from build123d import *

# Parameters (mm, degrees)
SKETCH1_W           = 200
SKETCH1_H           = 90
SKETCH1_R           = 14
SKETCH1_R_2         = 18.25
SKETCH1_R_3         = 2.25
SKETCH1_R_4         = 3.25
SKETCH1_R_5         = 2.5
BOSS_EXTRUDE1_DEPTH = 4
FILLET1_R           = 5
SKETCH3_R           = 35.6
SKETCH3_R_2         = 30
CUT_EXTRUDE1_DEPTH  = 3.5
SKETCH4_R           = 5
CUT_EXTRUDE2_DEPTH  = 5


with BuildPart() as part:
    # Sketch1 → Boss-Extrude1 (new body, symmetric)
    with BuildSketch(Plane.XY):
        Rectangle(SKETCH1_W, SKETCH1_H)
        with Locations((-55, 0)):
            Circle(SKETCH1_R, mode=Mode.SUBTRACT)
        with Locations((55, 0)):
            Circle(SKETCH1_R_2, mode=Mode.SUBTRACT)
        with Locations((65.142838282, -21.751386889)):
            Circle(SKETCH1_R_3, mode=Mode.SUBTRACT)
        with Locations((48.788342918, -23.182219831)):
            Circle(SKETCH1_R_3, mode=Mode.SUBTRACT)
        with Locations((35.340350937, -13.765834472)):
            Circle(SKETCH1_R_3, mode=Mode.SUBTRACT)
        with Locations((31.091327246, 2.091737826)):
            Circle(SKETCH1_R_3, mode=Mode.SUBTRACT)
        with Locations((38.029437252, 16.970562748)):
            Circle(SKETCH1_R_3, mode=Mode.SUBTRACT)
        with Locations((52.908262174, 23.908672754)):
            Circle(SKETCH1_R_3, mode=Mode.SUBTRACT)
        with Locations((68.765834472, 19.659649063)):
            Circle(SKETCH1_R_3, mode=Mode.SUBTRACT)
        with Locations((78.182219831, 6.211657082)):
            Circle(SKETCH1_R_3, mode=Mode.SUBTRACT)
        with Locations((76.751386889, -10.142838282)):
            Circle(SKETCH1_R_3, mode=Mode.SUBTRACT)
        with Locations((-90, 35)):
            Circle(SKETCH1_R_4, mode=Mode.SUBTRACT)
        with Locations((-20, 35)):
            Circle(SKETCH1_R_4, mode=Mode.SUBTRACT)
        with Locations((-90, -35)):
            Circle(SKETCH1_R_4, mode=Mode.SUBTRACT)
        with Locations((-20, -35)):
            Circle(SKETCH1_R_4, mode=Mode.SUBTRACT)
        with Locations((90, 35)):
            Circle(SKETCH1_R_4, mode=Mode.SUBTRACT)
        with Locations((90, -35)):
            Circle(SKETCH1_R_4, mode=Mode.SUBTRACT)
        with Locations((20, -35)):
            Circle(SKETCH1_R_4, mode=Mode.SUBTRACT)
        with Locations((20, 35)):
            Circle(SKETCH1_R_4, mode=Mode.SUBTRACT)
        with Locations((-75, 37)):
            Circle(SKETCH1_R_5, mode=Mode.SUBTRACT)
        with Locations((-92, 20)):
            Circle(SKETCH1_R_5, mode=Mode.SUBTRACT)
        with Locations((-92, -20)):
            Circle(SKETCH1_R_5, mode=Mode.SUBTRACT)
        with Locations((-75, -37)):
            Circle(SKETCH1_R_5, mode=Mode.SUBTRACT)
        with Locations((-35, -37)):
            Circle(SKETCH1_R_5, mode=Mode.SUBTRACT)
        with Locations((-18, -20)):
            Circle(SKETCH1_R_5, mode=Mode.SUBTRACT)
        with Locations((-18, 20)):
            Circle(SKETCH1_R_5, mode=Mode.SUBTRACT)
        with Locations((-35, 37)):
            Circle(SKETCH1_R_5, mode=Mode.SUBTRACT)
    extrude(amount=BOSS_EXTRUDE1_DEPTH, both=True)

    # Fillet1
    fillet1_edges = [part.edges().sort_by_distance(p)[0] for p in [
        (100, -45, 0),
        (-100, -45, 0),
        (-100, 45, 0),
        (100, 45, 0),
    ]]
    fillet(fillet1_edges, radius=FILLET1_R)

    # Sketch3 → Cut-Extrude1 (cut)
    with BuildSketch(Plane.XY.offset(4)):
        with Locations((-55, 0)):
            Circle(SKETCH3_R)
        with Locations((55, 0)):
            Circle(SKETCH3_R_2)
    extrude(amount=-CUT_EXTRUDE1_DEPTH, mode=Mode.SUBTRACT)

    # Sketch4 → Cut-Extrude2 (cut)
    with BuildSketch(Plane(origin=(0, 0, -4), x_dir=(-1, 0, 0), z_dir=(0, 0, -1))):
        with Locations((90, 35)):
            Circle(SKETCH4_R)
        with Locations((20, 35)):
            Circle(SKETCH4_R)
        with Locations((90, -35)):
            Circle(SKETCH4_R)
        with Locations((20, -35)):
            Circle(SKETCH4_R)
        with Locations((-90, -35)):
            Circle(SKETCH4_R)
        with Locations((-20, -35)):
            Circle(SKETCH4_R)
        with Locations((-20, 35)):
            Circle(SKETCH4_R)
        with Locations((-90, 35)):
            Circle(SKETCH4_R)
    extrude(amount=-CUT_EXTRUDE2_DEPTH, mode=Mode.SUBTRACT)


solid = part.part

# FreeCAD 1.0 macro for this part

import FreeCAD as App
import Part
import Sketcher
from FreeCAD import Vector


def edges_at(feature, points):
    """Names of the edges that pass closest to the given points."""
    edges = feature.Shape.Edges
    near = lambda p: min(range(len(edges)), key=lambda i: edges[i].distToShape(Part.Vertex(*p))[0])
    return sorted({f"Edge{near(p) + 1}" for p in points})


def add_polygon(sketch, points):
    """Adds a closed chain of lines whose ends are joined by coincident constraints."""
    first, n = sketch.GeometryCount, len(points)
    for a, b in zip(points, points[1:] + points[:1]):
        sketch.addGeometry(Part.LineSegment(App.Vector(*a, 0), App.Vector(*b, 0)), False)
    for i in range(n):
        sketch.addConstraint(Sketcher.Constraint("Coincident", first + i, 2, first + (i + 1) % n, 1))

doc = App.newDocument("Part")
body = doc.addObject("PartDesign::Body", "Body")

sketch1 = body.newObject("Sketcher::SketchObject", "Sketch")
sketch1.AttachmentSupport = (doc.getObject("XY_Plane"), [""])
sketch1.MapMode = "FlatFace"
add_polygon(sketch1, [(-100, 45), (-100, -45), (100, -45), (100, 45)])
sketch1.addGeometry(Part.Circle(Vector(-90, -35, 0), Vector(0, 0, 1), 3.2), False)
sketch1.addGeometry(Part.Circle(Vector(-75, -37, 0), Vector(0, 0, 1), 2.5), False)
sketch1.addGeometry(Part.Circle(Vector(-92, -20, 0), Vector(0, 0, 1), 2.5), False)
sketch1.addGeometry(Part.Circle(Vector(-35, -37, 0), Vector(0, 0, 1), 2.5), False)
sketch1.addGeometry(Part.Circle(Vector(-20, -35, 0), Vector(0, 0, 1), 3.2), False)
sketch1.addGeometry(Part.Circle(Vector(-18, -20, 0), Vector(0, 0, 1), 2.5), False)
sketch1.addGeometry(Part.Circle(Vector(20, -35, 0), Vector(0, 0, 1), 3.2), False)
sketch1.addGeometry(Part.Circle(Vector(90, -35, 0), Vector(0, 0, 1), 3.2), False)
sketch1.addGeometry(Part.Circle(Vector(48.8, -23.2, 0), Vector(0, 0, 1), 2.2), False)
sketch1.addGeometry(Part.Circle(Vector(65.1, -21.8, 0), Vector(0, 0, 1), 2.2), False)
sketch1.addGeometry(Part.Circle(Vector(35.3, -13.8, 0), Vector(0, 0, 1), 2.2), False)
sketch1.addGeometry(Part.Circle(Vector(76.8, -10.1, 0), Vector(0, 0, 1), 2.2), False)
sketch1.addGeometry(Part.Circle(Vector(-55, 0, 0), Vector(0, 0, 1), 14), False)
sketch1.addGeometry(Part.Circle(Vector(-92, 20, 0), Vector(0, 0, 1), 2.5), False)
sketch1.addGeometry(Part.Circle(Vector(-90, 35, 0), Vector(0, 0, 1), 3.2), False)
sketch1.addGeometry(Part.Circle(Vector(-75, 37, 0), Vector(0, 0, 1), 2.5), False)
sketch1.addGeometry(Part.Circle(Vector(-18, 20, 0), Vector(0, 0, 1), 2.5), False)
sketch1.addGeometry(Part.Circle(Vector(-35, 37, 0), Vector(0, 0, 1), 2.5), False)
sketch1.addGeometry(Part.Circle(Vector(-20, 35, 0), Vector(0, 0, 1), 3.2), False)
sketch1.addGeometry(Part.Circle(Vector(31.1, 2.1, 0), Vector(0, 0, 1), 2.2), False)
sketch1.addGeometry(Part.Circle(Vector(38, 17, 0), Vector(0, 0, 1), 2.2), False)
sketch1.addGeometry(Part.Circle(Vector(55, 0, 0), Vector(0, 0, 1), 18.2), False)
sketch1.addGeometry(Part.Circle(Vector(78.2, 6.2, 0), Vector(0, 0, 1), 2.2), False)
sketch1.addGeometry(Part.Circle(Vector(68.8, 19.7, 0), Vector(0, 0, 1), 2.2), False)
sketch1.addGeometry(Part.Circle(Vector(20, 35, 0), Vector(0, 0, 1), 3.2), False)
sketch1.addGeometry(Part.Circle(Vector(52.9, 23.9, 0), Vector(0, 0, 1), 2.2), False)
sketch1.addGeometry(Part.Circle(Vector(90, 35, 0), Vector(0, 0, 1), 3.2), False)
sketch1.addConstraint(Sketcher.Constraint("Vertical", 0))
sketch1.addConstraint(Sketcher.Constraint("Horizontal", 1))
sketch1.addConstraint(Sketcher.Constraint("Vertical", 2))
sketch1.addConstraint(Sketcher.Constraint("Horizontal", 3))
sketch1.addConstraint(Sketcher.Constraint("Equal", 5, 6))
sketch1.addConstraint(Sketcher.Constraint("Equal", 6, 7))
sketch1.addConstraint(Sketcher.Constraint("Equal", 4, 8))
sketch1.addConstraint(Sketcher.Constraint("Equal", 7, 9))
sketch1.addConstraint(Sketcher.Constraint("Equal", 8, 10))
sketch1.addConstraint(Sketcher.Constraint("Equal", 10, 11))
sketch1.addConstraint(Sketcher.Constraint("Equal", 12, 13))
sketch1.addConstraint(Sketcher.Constraint("Equal", 13, 14))
sketch1.addConstraint(Sketcher.Constraint("Equal", 14, 15))
sketch1.addConstraint(Sketcher.Constraint("Equal", 9, 17))
sketch1.addConstraint(Sketcher.Constraint("Equal", 11, 18))
sketch1.addConstraint(Sketcher.Constraint("Equal", 17, 19))
sketch1.addConstraint(Sketcher.Constraint("Equal", 19, 20))
sketch1.addConstraint(Sketcher.Constraint("Equal", 20, 21))
sketch1.addConstraint(Sketcher.Constraint("Equal", 18, 22))
sketch1.addConstraint(Sketcher.Constraint("Equal", 15, 23))
sketch1.addConstraint(Sketcher.Constraint("Equal", 23, 24))
sketch1.addConstraint(Sketcher.Constraint("Equal", 24, 26))
sketch1.addConstraint(Sketcher.Constraint("Equal", 26, 27))
sketch1.addConstraint(Sketcher.Constraint("Equal", 22, 28))
sketch1.addConstraint(Sketcher.Constraint("Equal", 27, 29))
sketch1.addConstraint(Sketcher.Constraint("Equal", 28, 30))
sketch1.addConstraint(Sketcher.Constraint("Symmetric", 11, 3, 18, 3, -1, 1))
sketch1.addConstraint(Sketcher.Constraint("Symmetric", 10, 3, 22, 3, -1, 1))
sketch1.addConstraint(Sketcher.Constraint("Symmetric", 16, 3, 25, 3, -1, 1))
sketch1.addConstraint(Sketcher.Constraint("Symmetric", 8, 3, 28, 3, -1, 1))
sketch1.addConstraint(Sketcher.Constraint("Symmetric", 4, 3, 30, 3, -1, 1))
sketch1.addConstraint(Sketcher.Constraint("Symmetric", 0, 2, 2, 2, -1, 1))
sketch1.addConstraint(Sketcher.Constraint("Symmetric", 8, 3, 10, 3, -2))
sketch1.addConstraint(Sketcher.Constraint("Symmetric", 4, 3, 11, 3, -2))
sketch1.addConstraint(Sketcher.Constraint("Symmetric", 6, 3, 17, 3, -1))
sketch1.addConstraint(Sketcher.Constraint("Symmetric", 5, 3, 19, 3, -1))
sketch1.addConstraint(Sketcher.Constraint("Symmetric", 9, 3, 20, 3, -1))
sketch1.addConstraint(Sketcher.Constraint("Symmetric", 7, 3, 21, 3, -1))
sketch1.addConstraint(Sketcher.Constraint("PointOnObject", 16, 3, -1))
sketch1.addConstraint(Sketcher.Constraint("Horizontal", 5, 3, 7, 3))
sketch1.addConstraint(Sketcher.Constraint("Horizontal", 4, 3, 8, 3))
sketch1.addConstraint(Sketcher.Constraint("Horizontal", 6, 3, 9, 3))
sketch1.addConstraint(Sketcher.Constraint("Diameter", 5, 5.0))
sketch1.addConstraint(Sketcher.Constraint("Diameter", 16, 28.0))
sketch1.addConstraint(Sketcher.Constraint("Diameter", 4, 6.5))
sketch1.addConstraint(Sketcher.Constraint("Diameter", 12, 4.5))
sketch1.addConstraint(Sketcher.Constraint("Diameter", 25, 36.5))
sketch1.addConstraint(Sketcher.Constraint("DistanceX", 1, 1, 1, 2, 200.0))
sketch1.addConstraint(Sketcher.Constraint("DistanceY", 0, 2, 0, 1, 90.0))
sketch1.addConstraint(Sketcher.Constraint("DistanceX", 4, 3, -1, 1, 90.0))
sketch1.addConstraint(Sketcher.Constraint("DistanceY", 4, 3, -1, 1, 35.0))
sketch1.addConstraint(Sketcher.Constraint("DistanceX", 5, 3, -1, 1, 75.0))
sketch1.addConstraint(Sketcher.Constraint("DistanceY", 5, 3, -1, 1, 37.0))
sketch1.addConstraint(Sketcher.Constraint("DistanceX", 6, 3, -1, 1, 92.0))
sketch1.addConstraint(Sketcher.Constraint("DistanceY", 6, 3, -1, 1, 20.0))
sketch1.addConstraint(Sketcher.Constraint("DistanceX", 7, 3, -1, 1, 35.0))
sketch1.addConstraint(Sketcher.Constraint("DistanceX", 8, 3, -1, 1, 20.0))
sketch1.addConstraint(Sketcher.Constraint("DistanceX", 9, 3, -1, 1, 18.0))
sketch1.addConstraint(Sketcher.Constraint("DistanceX", 16, 3, -1, 1, 55.0))
sketch1.addConstraint(Sketcher.Constraint("DistanceX", 24, 3, 13, 3, 27.113401))
sketch1.addConstraint(Sketcher.Constraint("DistanceY", 15, 3, 24, 3, 27.113401))
sketch1.addConstraint(Sketcher.Constraint("DistanceY", 12, 3, -1, 1, 23.18222))
sketch1.addConstraint(Sketcher.Constraint("DistanceX", -1, 1, 13, 3, 65.142838))
sketch1.addConstraint(Sketcher.Constraint("DistanceX", -1, 1, 14, 3, 35.340351))
sketch1.addConstraint(Sketcher.Constraint("DistanceY", 15, 3, -1, 1, 10.142838))
sketch1.addConstraint(Sketcher.Constraint("DistanceX", -1, 1, 26, 3, 78.18222))
sketch1.addConstraint(Sketcher.Constraint("DistanceY", -1, 1, 27, 3, 19.659649))
sketch1.addConstraint(Sketcher.Constraint("DistanceX", 14, 3, 12, 3, 13.447992))
sketch1.addConstraint(Sketcher.Constraint("DistanceX", 13, 3, 15, 3, 11.608549))
sketch1.addConstraint(Sketcher.Constraint("DistanceY", 13, 3, 15, 3, 11.608549))
sketch1.addConstraint(Sketcher.Constraint("DistanceX", 23, 3, 13, 3, 34.051511))
sketch1.addConstraint(Sketcher.Constraint("DistanceY", 26, 3, 27, 3, 13.447992))
sketch1.addConstraint(Sketcher.Constraint("DistanceY", 23, 3, 27, 3, 17.567911))
sketch1.addConstraint(Sketcher.Constraint("DistanceY", 24, 3, 29, 3, 6.93811))
sketch1.addConstraint(Sketcher.Constraint("DistanceY", 14, 3, -1, 1, 13.765834))
sketch1.addConstraint(Sketcher.Constraint("DistanceX", -1, 1, 27, 3, 68.765834))
sketch1.addConstraint(Sketcher.Constraint("DistanceX", -1, 1, 29, 3, 52.908262))
pad1 = body.newObject("PartDesign::Pad", "Pad")
pad1.Profile = sketch1
pad1.Length = 8
pad1.Midplane = True
doc.recompute()

fillet = body.newObject("PartDesign::Fillet", "Fillet")
fillet.Base = (pad1, edges_at(pad1, [
    (100, -45, 0),
    (-100, -45, 0),
    (-100, 45, 0),
    (100, 45, 0),
]))
fillet.Radius = 5

sketch2 = body.newObject("Sketcher::SketchObject", "Sketch001")
sketch2.AttachmentSupport = (doc.getObject("XY_Plane"), [""])
sketch2.MapMode = "FlatFace"
sketch2.AttachmentOffset = App.Placement(Vector(0, 0, 4), App.Rotation())
sketch2.addGeometry(Part.Circle(Vector(-55, 0, 0), Vector(0, 0, 1), 36), False)
sketch2.addGeometry(Part.Circle(Vector(55, 0, 0), Vector(0, 0, 1), 30), False)
sketch2.addConstraint(Sketcher.Constraint("Symmetric", 0, 3, 1, 3, -1, 1))
sketch2.addConstraint(Sketcher.Constraint("PointOnObject", 0, 3, -1))
sketch2.addConstraint(Sketcher.Constraint("Diameter", 1, 60.0))
sketch2.addConstraint(Sketcher.Constraint("Diameter", 0, 71.2))
sketch2.addConstraint(Sketcher.Constraint("DistanceX", 0, 3, -1, 1, 55.0))
pocket1 = body.newObject("PartDesign::Pocket", "Pocket")
pocket1.Profile = sketch2
pocket1.Length = 3.5

sketch3 = body.newObject("Sketcher::SketchObject", "Sketch002")
sketch3.AttachmentSupport = (doc.getObject("XY_Plane"), [""])
sketch3.MapMode = "FlatFace"
sketch3.AttachmentOffset = App.Placement(Vector(0, 0, -4), App.Rotation())
sketch3.addGeometry(Part.Circle(Vector(-90, 35, 0), Vector(0, 0, 1), 5), False)
sketch3.addGeometry(Part.Circle(Vector(-20, 35, 0), Vector(0, 0, 1), 5), False)
sketch3.addGeometry(Part.Circle(Vector(-90, -35, 0), Vector(0, 0, 1), 5), False)
sketch3.addGeometry(Part.Circle(Vector(-20, -35, 0), Vector(0, 0, 1), 5), False)
sketch3.addGeometry(Part.Circle(Vector(90, -35, 0), Vector(0, 0, 1), 5), False)
sketch3.addGeometry(Part.Circle(Vector(20, -35, 0), Vector(0, 0, 1), 5), False)
sketch3.addGeometry(Part.Circle(Vector(20, 35, 0), Vector(0, 0, 1), 5), False)
sketch3.addGeometry(Part.Circle(Vector(90, 35, 0), Vector(0, 0, 1), 5), False)
sketch3.addConstraint(Sketcher.Constraint("Equal", 0, 1))
sketch3.addConstraint(Sketcher.Constraint("Equal", 1, 2))
sketch3.addConstraint(Sketcher.Constraint("Equal", 2, 3))
sketch3.addConstraint(Sketcher.Constraint("Equal", 3, 4))
sketch3.addConstraint(Sketcher.Constraint("Equal", 4, 5))
sketch3.addConstraint(Sketcher.Constraint("Equal", 5, 6))
sketch3.addConstraint(Sketcher.Constraint("Equal", 6, 7))
sketch3.addConstraint(Sketcher.Constraint("Symmetric", 0, 3, 4, 3, -1, 1))
sketch3.addConstraint(Sketcher.Constraint("Symmetric", 1, 3, 5, 3, -1, 1))
sketch3.addConstraint(Sketcher.Constraint("Symmetric", 3, 3, 6, 3, -1, 1))
sketch3.addConstraint(Sketcher.Constraint("Symmetric", 2, 3, 7, 3, -1, 1))
sketch3.addConstraint(Sketcher.Constraint("Symmetric", 2, 3, 4, 3, -2))
sketch3.addConstraint(Sketcher.Constraint("Symmetric", 3, 3, 5, 3, -2))
sketch3.addConstraint(Sketcher.Constraint("Horizontal", 0, 3, 1, 3))
sketch3.addConstraint(Sketcher.Constraint("Diameter", 0, 10.0))
sketch3.addConstraint(Sketcher.Constraint("DistanceX", 0, 3, -1, 1, 90.0))
sketch3.addConstraint(Sketcher.Constraint("DistanceY", -1, 1, 0, 3, 35.0))
sketch3.addConstraint(Sketcher.Constraint("DistanceX", 1, 3, -1, 1, 20.0))
pocket2 = body.newObject("PartDesign::Pocket", "Pocket001")
pocket2.Profile = sketch3
pocket2.Length = 5
pocket2.Reversed = True

doc.recompute()
